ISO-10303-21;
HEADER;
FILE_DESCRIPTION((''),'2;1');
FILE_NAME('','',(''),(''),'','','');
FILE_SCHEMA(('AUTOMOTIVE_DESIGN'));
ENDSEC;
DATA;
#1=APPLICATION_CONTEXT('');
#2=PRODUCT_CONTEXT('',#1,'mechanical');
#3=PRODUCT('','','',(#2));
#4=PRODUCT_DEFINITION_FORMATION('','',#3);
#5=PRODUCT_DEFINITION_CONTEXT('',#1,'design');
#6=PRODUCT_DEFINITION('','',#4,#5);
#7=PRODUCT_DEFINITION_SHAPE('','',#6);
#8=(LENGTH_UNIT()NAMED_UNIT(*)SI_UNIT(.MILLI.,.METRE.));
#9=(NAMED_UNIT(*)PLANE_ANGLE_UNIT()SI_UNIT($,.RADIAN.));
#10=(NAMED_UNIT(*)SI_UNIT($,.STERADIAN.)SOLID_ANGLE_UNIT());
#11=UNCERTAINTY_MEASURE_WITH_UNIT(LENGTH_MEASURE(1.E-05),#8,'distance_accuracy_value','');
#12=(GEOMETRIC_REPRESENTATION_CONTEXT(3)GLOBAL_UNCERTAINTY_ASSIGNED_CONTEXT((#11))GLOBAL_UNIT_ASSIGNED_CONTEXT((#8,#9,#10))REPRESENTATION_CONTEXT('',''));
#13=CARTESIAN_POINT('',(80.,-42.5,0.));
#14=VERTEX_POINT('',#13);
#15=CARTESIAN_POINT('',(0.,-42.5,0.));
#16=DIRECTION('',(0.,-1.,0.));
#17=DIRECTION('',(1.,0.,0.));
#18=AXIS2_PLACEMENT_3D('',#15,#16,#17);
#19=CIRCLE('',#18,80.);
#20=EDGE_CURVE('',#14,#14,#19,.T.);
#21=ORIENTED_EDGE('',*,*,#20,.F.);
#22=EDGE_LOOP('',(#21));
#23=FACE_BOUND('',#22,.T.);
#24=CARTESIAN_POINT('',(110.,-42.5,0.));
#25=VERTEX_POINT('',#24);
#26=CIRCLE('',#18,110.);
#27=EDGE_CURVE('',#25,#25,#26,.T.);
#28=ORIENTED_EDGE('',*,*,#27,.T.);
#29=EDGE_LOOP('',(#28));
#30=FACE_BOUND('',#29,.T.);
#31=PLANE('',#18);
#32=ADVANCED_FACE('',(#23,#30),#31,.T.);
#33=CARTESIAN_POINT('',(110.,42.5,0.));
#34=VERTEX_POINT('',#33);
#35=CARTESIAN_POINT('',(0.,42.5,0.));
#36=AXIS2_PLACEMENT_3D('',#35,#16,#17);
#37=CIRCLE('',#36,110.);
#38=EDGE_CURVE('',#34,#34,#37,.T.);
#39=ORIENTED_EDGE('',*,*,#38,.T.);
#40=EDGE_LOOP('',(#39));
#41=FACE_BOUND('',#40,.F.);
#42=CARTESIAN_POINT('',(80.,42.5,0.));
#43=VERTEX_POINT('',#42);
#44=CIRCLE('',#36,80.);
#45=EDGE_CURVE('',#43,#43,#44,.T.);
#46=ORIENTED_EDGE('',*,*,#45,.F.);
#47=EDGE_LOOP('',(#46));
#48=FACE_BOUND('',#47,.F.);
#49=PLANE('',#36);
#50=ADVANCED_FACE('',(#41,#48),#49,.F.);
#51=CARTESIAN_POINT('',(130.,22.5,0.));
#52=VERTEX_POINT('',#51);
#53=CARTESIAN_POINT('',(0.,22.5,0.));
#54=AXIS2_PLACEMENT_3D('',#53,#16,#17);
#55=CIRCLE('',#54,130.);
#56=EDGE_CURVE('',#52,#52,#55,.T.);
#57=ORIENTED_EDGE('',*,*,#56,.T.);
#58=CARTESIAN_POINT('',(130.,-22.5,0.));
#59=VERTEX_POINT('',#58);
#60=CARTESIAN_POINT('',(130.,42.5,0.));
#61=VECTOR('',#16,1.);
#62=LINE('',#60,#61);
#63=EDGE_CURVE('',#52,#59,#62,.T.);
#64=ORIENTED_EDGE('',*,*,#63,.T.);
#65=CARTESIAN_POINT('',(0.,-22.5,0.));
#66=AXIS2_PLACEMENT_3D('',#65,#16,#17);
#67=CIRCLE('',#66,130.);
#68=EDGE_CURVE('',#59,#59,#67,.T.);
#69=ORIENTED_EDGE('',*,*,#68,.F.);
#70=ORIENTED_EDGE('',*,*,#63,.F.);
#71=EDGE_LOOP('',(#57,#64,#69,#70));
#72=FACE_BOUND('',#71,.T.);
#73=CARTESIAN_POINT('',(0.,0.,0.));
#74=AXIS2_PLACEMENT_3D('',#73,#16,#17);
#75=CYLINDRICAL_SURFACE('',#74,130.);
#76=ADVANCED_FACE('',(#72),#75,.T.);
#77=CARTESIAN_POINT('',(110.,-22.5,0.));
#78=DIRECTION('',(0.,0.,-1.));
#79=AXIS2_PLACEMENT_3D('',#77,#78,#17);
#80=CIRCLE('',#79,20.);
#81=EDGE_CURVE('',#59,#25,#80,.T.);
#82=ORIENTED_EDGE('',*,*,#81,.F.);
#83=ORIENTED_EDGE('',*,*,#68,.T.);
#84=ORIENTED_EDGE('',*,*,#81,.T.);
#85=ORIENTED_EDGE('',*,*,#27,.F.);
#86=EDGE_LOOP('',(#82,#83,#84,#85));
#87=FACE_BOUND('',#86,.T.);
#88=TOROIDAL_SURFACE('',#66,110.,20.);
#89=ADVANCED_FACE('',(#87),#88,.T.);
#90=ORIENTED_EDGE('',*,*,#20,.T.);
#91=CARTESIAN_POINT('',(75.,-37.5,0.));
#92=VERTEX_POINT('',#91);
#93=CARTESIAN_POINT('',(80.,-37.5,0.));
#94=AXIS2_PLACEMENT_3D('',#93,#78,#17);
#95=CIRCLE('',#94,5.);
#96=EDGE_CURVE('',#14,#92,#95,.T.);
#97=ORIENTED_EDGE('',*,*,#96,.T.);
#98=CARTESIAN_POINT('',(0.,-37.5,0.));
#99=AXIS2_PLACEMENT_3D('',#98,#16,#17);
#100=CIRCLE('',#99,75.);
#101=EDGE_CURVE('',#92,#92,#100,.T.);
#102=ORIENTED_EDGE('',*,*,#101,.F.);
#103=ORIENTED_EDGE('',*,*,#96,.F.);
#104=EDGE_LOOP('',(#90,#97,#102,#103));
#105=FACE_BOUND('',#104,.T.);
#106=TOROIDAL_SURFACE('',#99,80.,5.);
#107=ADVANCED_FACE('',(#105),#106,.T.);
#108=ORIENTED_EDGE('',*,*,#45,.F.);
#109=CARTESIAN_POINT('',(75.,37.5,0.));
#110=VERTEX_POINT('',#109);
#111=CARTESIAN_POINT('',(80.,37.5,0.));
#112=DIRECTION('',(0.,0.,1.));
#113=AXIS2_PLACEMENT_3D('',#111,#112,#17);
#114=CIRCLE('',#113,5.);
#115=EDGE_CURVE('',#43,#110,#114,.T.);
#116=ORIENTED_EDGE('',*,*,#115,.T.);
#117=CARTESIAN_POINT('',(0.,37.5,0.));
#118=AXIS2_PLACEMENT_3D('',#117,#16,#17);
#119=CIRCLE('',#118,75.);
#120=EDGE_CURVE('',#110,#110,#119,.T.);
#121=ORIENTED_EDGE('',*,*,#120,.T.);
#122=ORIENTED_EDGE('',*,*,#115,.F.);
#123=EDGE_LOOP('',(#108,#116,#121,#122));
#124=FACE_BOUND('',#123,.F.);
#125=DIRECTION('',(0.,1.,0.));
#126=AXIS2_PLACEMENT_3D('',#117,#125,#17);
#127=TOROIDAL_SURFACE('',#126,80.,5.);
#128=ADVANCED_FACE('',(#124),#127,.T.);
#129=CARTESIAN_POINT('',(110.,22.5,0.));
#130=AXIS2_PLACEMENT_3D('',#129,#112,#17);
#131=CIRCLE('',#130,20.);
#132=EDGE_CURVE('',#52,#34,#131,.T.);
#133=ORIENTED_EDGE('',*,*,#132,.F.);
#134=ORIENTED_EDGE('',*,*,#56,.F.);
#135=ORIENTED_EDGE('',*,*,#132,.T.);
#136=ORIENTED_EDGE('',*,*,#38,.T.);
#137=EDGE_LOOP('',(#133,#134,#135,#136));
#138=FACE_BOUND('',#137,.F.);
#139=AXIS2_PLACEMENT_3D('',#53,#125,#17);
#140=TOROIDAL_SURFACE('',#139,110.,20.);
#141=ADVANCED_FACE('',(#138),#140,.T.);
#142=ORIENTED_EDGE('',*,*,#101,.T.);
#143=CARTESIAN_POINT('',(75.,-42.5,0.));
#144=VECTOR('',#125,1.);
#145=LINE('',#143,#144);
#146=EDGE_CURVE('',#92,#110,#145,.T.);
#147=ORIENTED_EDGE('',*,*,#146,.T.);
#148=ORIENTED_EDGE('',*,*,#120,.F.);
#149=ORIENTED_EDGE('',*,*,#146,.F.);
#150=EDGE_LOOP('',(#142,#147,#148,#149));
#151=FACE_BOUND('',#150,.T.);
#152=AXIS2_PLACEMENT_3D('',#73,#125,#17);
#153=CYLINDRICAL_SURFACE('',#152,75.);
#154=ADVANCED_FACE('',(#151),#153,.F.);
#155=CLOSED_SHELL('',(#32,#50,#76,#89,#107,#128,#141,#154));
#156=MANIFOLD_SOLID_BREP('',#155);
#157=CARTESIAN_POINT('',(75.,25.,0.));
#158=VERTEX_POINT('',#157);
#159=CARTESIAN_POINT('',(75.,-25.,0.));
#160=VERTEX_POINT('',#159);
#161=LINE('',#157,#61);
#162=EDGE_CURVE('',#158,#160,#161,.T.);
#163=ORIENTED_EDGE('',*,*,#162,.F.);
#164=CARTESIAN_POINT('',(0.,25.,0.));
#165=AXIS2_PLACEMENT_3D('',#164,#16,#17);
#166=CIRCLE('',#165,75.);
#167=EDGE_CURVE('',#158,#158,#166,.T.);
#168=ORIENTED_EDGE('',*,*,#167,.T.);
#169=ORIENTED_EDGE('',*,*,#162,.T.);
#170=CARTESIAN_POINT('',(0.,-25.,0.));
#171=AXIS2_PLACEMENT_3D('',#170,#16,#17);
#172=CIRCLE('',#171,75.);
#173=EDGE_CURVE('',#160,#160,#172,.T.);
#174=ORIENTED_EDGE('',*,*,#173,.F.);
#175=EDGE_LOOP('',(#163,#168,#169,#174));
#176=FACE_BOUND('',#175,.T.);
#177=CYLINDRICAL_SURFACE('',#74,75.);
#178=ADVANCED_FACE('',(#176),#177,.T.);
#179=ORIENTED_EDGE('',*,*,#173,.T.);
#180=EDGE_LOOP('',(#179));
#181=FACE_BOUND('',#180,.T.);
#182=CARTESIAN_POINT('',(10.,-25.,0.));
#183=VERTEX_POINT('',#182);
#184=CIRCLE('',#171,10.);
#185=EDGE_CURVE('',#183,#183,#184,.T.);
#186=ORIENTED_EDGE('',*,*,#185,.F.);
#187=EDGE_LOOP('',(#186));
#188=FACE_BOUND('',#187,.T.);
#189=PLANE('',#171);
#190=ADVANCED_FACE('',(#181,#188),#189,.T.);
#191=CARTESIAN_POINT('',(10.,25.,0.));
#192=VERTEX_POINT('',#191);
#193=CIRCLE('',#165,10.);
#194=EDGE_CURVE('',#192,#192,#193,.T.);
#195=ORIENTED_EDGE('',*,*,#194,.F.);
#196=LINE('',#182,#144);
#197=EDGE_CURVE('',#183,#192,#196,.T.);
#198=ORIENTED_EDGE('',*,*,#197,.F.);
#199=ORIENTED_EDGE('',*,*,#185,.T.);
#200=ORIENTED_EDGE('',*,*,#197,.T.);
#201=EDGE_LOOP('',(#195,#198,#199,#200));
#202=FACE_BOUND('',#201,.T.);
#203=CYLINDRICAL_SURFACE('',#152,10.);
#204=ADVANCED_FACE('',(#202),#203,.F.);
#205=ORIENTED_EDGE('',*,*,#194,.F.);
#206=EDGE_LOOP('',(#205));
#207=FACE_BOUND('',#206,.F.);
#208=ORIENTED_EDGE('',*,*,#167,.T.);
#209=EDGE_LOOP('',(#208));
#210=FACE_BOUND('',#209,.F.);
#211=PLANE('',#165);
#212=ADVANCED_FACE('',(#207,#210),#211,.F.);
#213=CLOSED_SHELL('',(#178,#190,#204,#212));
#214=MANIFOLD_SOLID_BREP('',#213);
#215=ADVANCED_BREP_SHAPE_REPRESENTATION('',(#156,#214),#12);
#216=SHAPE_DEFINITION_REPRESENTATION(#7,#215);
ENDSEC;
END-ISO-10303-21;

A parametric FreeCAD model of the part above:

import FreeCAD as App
import Part
import Sketcher


def edges_at(feature, points):
    """Names of the edges that pass closest to the given points."""
    edges = feature.Shape.Edges
    near = lambda p: min(range(len(edges)), key=lambda i: edges[i].distToShape(Part.Vertex(*p))[0])
    return sorted({f"Edge{near(p) + 1}" for p in points})

doc = App.newDocument("Part")
body = doc.addObject("PartDesign::Body", "Body")

# Sketch on XZ plane
sketch1 = body.newObject("Sketcher::SketchObject", "Sketch")
sketch1.AttachmentSupport = (doc.getObject("XZ_Plane"), [""])
sketch1.MapMode = "FlatFace"
sketch1.addGeometry([
    Part.Circle(App.Vector(0, 0, 0), App.Vector(0, 0, 1), 75),
    Part.Circle(App.Vector(0, 0, 0), App.Vector(0, 0, 1), 10),
], False)
sketch1.addConstraint([
    Sketcher.Constraint("Coincident", 0, 3, -1, 1),
    Sketcher.Constraint("Coincident", 1, 3, -1, 1),
    Sketcher.Constraint("Diameter", 0, 150.0),
    Sketcher.Constraint("Diameter", 1, 20.0),
])
pad1 = body.newObject("PartDesign::Pad", "Pad")
pad1.Profile = sketch1
pad1.Length = 50
pad1.Midplane = True
body2 = doc.addObject("PartDesign::Body", "Body001")

# Sketch on XZ plane
sketch2 = body2.newObject("Sketcher::SketchObject", "Sketch001")
sketch2.AttachmentSupport = (doc.getObject("XZ_Plane001"), [""])
sketch2.MapMode = "FlatFace"
sketch2.addGeometry([
    Part.Circle(App.Vector(0, 0, 0), App.Vector(0, 0, 1), 130),
    Part.Circle(App.Vector(0, 0, 0), App.Vector(0, 0, 1), 75),
], False)
sketch2.addConstraint([
    Sketcher.Constraint("Coincident", 0, 3, -1, 1),
    Sketcher.Constraint("Coincident", 1, 3, -1, 1),
    Sketcher.Constraint("Diameter", 0, 260.0),
    Sketcher.Constraint("Diameter", 1, 150.0),
])
pad2 = body2.newObject("PartDesign::Pad", "Pad001")
pad2.Profile = sketch2
pad2.Length = 85
pad2.Midplane = True
doc.recompute()

fillet = body2.newObject("PartDesign::Fillet", "Fillet")
fillet.Base = (pad2, edges_at(pad2, [(-130, -42.5, 0), (-130, 42.5, 0)]))
fillet.Radius = 20
doc.recompute()

fillet2 = body2.newObject("PartDesign::Fillet", "Fillet001")
fillet2.Base = (fillet, edges_at(fillet, [(-75, -42.5, 0), (-75, 42.5, 0)]))
fillet2.Radius = 5

doc.recompute()
